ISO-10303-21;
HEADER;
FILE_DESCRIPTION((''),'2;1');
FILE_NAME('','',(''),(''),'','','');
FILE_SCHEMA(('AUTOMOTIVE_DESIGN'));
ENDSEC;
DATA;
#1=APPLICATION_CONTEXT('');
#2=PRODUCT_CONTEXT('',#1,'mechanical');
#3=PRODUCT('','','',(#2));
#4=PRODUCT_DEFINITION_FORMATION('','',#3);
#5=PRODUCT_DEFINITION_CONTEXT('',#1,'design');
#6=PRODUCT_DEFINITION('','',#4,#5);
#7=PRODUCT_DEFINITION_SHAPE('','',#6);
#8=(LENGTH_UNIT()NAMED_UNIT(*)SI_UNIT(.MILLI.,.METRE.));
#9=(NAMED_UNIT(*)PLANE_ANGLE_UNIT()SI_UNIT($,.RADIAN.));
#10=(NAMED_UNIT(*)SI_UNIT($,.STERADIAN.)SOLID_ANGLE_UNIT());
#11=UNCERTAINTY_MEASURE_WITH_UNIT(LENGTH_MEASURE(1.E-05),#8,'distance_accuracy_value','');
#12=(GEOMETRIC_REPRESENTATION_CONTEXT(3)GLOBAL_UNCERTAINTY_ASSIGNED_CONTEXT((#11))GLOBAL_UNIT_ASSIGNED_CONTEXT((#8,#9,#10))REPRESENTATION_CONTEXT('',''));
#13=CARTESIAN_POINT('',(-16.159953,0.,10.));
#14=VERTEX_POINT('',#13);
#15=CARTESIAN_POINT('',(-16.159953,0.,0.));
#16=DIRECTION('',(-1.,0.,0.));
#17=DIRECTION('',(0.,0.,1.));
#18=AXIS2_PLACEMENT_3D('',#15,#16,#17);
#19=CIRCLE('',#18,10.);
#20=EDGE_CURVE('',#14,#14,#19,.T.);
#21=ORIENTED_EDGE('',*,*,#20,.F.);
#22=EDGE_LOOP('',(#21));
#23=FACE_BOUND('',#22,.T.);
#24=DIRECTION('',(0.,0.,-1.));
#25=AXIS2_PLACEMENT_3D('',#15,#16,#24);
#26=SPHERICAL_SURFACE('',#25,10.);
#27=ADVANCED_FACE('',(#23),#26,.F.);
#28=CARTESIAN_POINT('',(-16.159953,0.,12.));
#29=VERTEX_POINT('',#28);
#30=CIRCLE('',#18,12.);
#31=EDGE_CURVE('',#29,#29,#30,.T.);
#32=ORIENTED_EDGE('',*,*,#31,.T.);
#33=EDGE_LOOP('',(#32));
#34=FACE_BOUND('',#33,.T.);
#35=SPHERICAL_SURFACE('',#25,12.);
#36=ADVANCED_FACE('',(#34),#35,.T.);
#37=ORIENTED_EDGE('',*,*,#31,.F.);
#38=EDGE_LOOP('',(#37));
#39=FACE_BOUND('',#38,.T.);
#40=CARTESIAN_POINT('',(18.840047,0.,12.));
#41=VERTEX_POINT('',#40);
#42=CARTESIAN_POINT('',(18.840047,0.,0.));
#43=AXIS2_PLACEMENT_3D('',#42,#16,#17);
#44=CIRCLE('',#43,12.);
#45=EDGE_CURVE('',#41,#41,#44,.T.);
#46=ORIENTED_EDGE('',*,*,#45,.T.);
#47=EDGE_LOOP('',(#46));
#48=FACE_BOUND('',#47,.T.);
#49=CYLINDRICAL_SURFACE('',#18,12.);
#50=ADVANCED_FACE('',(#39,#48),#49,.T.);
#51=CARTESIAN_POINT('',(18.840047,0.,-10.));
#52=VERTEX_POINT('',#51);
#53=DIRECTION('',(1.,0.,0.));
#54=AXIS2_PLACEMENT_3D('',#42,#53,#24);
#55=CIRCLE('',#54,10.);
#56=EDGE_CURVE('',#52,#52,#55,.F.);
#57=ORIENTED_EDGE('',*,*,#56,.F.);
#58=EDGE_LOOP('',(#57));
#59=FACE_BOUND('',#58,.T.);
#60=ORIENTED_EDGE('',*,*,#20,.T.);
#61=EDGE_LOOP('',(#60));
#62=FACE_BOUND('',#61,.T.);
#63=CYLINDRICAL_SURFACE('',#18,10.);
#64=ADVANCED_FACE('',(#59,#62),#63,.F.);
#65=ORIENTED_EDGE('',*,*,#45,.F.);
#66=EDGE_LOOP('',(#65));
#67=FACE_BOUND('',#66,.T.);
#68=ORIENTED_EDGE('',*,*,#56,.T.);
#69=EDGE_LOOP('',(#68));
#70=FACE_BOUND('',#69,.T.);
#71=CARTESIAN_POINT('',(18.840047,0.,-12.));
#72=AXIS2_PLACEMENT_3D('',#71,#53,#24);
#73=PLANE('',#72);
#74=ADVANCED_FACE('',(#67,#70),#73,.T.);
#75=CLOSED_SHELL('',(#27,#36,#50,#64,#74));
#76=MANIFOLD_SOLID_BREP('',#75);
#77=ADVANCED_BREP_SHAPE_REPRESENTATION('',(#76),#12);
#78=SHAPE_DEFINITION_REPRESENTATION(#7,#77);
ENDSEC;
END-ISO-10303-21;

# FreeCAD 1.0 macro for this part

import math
import FreeCAD as App
import Part
import Sketcher

V = App.Vector


def faces_at(feature, points):
    """Names of the faces that lie closest to the given points."""
    faces = feature.Shape.Faces
    near = lambda p: min(range(len(faces)), key=lambda i: faces[i].distToShape(Part.Vertex(*p))[0])
    return sorted({f"Face{near(p) + 1}" for p in points})

doc = App.newDocument("Part")
body = doc.addObject("PartDesign::Body", "Body")

# Sketch on XZ plane
sketch1 = body.newObject("Sketcher::SketchObject", "Sketch")
sketch1.AttachmentSupport = (doc.getObject("XZ_Plane"), [""])
sketch1.MapMode = "FlatFace"
sketch1.addGeometry(Part.LineSegment(V(19, -12, 0), V(-16, -12, 0)), False)
sketch1.addGeometry(Part.ArcOfCircle(Part.Circle(V(-16, 0, 0), V(0, 0, 1), 12), math.radians(180), math.radians(270)), False)
sketch1.addGeometry(Part.LineSegment(V(-28, 0, 0), V(19, 0, 0)), False)
sketch1.addGeometry(Part.LineSegment(V(19, 0, 0), V(19, -12, 0)), False)
sketch1.addConstraint(Sketcher.Constraint("Tangent", 0, 2, 1, 2))
sketch1.addConstraint(Sketcher.Constraint("Coincident", 1, 1, 2, 1))
sketch1.addConstraint(Sketcher.Constraint("Coincident", 2, 2, 3, 1))
sketch1.addConstraint(Sketcher.Constraint("Coincident", 3, 2, 0, 1))
sketch1.addConstraint(Sketcher.Constraint("Horizontal", 0))
sketch1.addConstraint(Sketcher.Constraint("Horizontal", 2))
sketch1.addConstraint(Sketcher.Constraint("Vertical", 3))
sketch1.addConstraint(Sketcher.Constraint("PointOnObject", 1, 3, -1))
sketch1.addConstraint(Sketcher.Constraint("PointOnObject", 1, 1, -1))
sketch1.addConstraint(Sketcher.Constraint("Radius", 1, 12.0))
sketch1.addConstraint(Sketcher.Constraint("DistanceX", 0, 2, 0, 1, 35.0))
sketch1.addConstraint(Sketcher.Constraint("DistanceX", 1, 3, -1, 1, 16.159953))
revolution = body.newObject("PartDesign::Revolution", "Revolution")
revolution.Profile = sketch1
revolution.ReferenceAxis = (sketch1, ["H_Axis"])
revolution.Angle = 360
doc.recompute()

thickness = body.newObject("PartDesign::Thickness", "Thickness")
thickness.Base = (revolution, faces_at(revolution, [(18.84, 0, 0)]))
thickness.Value = 2
thickness.Reversed = True
thickness.Join = "Intersection"

doc.recompute()
